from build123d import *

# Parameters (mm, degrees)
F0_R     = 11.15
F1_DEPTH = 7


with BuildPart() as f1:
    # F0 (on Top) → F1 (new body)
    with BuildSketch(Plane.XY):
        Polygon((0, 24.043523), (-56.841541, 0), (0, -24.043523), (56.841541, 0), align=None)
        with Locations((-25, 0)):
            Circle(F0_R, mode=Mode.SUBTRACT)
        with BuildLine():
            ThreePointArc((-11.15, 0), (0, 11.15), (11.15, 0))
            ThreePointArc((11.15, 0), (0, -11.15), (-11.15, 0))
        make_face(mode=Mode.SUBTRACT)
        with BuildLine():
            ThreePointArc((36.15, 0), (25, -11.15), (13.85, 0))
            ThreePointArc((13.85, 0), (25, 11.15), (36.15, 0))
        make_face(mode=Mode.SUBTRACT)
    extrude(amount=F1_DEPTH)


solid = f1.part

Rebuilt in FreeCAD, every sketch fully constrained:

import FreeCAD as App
import Part
import Sketcher

V = App.Vector
Q = App.Units.Quantity

doc = App.newDocument("Part")
body = doc.addObject("PartDesign::Body", "Body")

# Sketch on XY plane
sketch1 = body.newObject("Sketcher::SketchObject", "Sketch")
sketch1.AttachmentSupport = (doc.getObject("XY_Plane"), [""])
sketch1.MapMode = "FlatFace"
sketch1.addGeometry(Part.LineSegment(V(0, 24.043523, 0), V(-56.841541, 0, 0)), False)
sketch1.addGeometry(Part.LineSegment(V(-56.841541, 0, 0), V(0, -24.043523, 0)), False)
sketch1.addGeometry(Part.LineSegment(V(0, -24.043523, 0), V(56.841541, 0, 0)), False)
sketch1.addGeometry(Part.LineSegment(V(56.841541, 0, 0), V(0, 24.043523, 0)), False)
sketch1.addGeometry(Part.Circle(V(-25, 0, 0), V(0, 0, 1), 11.15), False)
sketch1.addGeometry(Part.Circle(V(0, 0, 0), V(0, 0, 1), 11.15), False)
sketch1.addGeometry(Part.Circle(V(25, 0, 0), V(0, 0, 1), 11.15), False)
sketch1.addConstraint(Sketcher.Constraint("Coincident", 0, 2, 1, 1))
sketch1.addConstraint(Sketcher.Constraint("Coincident", 1, 2, 2, 1))
sketch1.addConstraint(Sketcher.Constraint("Coincident", 2, 2, 3, 1))
sketch1.addConstraint(Sketcher.Constraint("Coincident", 3, 2, 0, 1))
sketch1.addConstraint(Sketcher.Constraint("Coincident", 5, 3, -1, 1))
sketch1.addConstraint(Sketcher.Constraint("Equal", 4, 5))
sketch1.addConstraint(Sketcher.Constraint("Equal", 5, 6))
sketch1.addConstraint(Sketcher.Constraint("Symmetric", 4, 3, 6, 3, -1, 1))
sketch1.addConstraint(Sketcher.Constraint("Symmetric", 0, 2, 2, 2, -1, 1))
sketch1.addConstraint(Sketcher.Constraint("Symmetric", 1, 2, 3, 2, -1, 1))
sketch1.addConstraint(Sketcher.Constraint("PointOnObject", 4, 3, -1))
sketch1.addConstraint(Sketcher.Constraint("PointOnObject", 0, 2, -1))
sketch1.addConstraint(Sketcher.Constraint("PointOnObject", 1, 2, -2))
sketch1.addConstraint(Sketcher.Constraint("Diameter", 4, Q("22.3 mm")))
sketch1.addConstraint(Sketcher.Constraint("DistanceX", 4, 3, -1, 1, Q("25 mm")))
sketch1.addConstraint(Sketcher.Constraint("DistanceX", 0, 2, -1, 1, Q("56.841541 mm")))
sketch1.addConstraint(Sketcher.Constraint("Distance", 0, Q("61.717516 mm")))
pad1 = body.newObject("PartDesign::Pad", "Pad")
pad1.Profile = sketch1
pad1.Length = 7

doc.recompute()
